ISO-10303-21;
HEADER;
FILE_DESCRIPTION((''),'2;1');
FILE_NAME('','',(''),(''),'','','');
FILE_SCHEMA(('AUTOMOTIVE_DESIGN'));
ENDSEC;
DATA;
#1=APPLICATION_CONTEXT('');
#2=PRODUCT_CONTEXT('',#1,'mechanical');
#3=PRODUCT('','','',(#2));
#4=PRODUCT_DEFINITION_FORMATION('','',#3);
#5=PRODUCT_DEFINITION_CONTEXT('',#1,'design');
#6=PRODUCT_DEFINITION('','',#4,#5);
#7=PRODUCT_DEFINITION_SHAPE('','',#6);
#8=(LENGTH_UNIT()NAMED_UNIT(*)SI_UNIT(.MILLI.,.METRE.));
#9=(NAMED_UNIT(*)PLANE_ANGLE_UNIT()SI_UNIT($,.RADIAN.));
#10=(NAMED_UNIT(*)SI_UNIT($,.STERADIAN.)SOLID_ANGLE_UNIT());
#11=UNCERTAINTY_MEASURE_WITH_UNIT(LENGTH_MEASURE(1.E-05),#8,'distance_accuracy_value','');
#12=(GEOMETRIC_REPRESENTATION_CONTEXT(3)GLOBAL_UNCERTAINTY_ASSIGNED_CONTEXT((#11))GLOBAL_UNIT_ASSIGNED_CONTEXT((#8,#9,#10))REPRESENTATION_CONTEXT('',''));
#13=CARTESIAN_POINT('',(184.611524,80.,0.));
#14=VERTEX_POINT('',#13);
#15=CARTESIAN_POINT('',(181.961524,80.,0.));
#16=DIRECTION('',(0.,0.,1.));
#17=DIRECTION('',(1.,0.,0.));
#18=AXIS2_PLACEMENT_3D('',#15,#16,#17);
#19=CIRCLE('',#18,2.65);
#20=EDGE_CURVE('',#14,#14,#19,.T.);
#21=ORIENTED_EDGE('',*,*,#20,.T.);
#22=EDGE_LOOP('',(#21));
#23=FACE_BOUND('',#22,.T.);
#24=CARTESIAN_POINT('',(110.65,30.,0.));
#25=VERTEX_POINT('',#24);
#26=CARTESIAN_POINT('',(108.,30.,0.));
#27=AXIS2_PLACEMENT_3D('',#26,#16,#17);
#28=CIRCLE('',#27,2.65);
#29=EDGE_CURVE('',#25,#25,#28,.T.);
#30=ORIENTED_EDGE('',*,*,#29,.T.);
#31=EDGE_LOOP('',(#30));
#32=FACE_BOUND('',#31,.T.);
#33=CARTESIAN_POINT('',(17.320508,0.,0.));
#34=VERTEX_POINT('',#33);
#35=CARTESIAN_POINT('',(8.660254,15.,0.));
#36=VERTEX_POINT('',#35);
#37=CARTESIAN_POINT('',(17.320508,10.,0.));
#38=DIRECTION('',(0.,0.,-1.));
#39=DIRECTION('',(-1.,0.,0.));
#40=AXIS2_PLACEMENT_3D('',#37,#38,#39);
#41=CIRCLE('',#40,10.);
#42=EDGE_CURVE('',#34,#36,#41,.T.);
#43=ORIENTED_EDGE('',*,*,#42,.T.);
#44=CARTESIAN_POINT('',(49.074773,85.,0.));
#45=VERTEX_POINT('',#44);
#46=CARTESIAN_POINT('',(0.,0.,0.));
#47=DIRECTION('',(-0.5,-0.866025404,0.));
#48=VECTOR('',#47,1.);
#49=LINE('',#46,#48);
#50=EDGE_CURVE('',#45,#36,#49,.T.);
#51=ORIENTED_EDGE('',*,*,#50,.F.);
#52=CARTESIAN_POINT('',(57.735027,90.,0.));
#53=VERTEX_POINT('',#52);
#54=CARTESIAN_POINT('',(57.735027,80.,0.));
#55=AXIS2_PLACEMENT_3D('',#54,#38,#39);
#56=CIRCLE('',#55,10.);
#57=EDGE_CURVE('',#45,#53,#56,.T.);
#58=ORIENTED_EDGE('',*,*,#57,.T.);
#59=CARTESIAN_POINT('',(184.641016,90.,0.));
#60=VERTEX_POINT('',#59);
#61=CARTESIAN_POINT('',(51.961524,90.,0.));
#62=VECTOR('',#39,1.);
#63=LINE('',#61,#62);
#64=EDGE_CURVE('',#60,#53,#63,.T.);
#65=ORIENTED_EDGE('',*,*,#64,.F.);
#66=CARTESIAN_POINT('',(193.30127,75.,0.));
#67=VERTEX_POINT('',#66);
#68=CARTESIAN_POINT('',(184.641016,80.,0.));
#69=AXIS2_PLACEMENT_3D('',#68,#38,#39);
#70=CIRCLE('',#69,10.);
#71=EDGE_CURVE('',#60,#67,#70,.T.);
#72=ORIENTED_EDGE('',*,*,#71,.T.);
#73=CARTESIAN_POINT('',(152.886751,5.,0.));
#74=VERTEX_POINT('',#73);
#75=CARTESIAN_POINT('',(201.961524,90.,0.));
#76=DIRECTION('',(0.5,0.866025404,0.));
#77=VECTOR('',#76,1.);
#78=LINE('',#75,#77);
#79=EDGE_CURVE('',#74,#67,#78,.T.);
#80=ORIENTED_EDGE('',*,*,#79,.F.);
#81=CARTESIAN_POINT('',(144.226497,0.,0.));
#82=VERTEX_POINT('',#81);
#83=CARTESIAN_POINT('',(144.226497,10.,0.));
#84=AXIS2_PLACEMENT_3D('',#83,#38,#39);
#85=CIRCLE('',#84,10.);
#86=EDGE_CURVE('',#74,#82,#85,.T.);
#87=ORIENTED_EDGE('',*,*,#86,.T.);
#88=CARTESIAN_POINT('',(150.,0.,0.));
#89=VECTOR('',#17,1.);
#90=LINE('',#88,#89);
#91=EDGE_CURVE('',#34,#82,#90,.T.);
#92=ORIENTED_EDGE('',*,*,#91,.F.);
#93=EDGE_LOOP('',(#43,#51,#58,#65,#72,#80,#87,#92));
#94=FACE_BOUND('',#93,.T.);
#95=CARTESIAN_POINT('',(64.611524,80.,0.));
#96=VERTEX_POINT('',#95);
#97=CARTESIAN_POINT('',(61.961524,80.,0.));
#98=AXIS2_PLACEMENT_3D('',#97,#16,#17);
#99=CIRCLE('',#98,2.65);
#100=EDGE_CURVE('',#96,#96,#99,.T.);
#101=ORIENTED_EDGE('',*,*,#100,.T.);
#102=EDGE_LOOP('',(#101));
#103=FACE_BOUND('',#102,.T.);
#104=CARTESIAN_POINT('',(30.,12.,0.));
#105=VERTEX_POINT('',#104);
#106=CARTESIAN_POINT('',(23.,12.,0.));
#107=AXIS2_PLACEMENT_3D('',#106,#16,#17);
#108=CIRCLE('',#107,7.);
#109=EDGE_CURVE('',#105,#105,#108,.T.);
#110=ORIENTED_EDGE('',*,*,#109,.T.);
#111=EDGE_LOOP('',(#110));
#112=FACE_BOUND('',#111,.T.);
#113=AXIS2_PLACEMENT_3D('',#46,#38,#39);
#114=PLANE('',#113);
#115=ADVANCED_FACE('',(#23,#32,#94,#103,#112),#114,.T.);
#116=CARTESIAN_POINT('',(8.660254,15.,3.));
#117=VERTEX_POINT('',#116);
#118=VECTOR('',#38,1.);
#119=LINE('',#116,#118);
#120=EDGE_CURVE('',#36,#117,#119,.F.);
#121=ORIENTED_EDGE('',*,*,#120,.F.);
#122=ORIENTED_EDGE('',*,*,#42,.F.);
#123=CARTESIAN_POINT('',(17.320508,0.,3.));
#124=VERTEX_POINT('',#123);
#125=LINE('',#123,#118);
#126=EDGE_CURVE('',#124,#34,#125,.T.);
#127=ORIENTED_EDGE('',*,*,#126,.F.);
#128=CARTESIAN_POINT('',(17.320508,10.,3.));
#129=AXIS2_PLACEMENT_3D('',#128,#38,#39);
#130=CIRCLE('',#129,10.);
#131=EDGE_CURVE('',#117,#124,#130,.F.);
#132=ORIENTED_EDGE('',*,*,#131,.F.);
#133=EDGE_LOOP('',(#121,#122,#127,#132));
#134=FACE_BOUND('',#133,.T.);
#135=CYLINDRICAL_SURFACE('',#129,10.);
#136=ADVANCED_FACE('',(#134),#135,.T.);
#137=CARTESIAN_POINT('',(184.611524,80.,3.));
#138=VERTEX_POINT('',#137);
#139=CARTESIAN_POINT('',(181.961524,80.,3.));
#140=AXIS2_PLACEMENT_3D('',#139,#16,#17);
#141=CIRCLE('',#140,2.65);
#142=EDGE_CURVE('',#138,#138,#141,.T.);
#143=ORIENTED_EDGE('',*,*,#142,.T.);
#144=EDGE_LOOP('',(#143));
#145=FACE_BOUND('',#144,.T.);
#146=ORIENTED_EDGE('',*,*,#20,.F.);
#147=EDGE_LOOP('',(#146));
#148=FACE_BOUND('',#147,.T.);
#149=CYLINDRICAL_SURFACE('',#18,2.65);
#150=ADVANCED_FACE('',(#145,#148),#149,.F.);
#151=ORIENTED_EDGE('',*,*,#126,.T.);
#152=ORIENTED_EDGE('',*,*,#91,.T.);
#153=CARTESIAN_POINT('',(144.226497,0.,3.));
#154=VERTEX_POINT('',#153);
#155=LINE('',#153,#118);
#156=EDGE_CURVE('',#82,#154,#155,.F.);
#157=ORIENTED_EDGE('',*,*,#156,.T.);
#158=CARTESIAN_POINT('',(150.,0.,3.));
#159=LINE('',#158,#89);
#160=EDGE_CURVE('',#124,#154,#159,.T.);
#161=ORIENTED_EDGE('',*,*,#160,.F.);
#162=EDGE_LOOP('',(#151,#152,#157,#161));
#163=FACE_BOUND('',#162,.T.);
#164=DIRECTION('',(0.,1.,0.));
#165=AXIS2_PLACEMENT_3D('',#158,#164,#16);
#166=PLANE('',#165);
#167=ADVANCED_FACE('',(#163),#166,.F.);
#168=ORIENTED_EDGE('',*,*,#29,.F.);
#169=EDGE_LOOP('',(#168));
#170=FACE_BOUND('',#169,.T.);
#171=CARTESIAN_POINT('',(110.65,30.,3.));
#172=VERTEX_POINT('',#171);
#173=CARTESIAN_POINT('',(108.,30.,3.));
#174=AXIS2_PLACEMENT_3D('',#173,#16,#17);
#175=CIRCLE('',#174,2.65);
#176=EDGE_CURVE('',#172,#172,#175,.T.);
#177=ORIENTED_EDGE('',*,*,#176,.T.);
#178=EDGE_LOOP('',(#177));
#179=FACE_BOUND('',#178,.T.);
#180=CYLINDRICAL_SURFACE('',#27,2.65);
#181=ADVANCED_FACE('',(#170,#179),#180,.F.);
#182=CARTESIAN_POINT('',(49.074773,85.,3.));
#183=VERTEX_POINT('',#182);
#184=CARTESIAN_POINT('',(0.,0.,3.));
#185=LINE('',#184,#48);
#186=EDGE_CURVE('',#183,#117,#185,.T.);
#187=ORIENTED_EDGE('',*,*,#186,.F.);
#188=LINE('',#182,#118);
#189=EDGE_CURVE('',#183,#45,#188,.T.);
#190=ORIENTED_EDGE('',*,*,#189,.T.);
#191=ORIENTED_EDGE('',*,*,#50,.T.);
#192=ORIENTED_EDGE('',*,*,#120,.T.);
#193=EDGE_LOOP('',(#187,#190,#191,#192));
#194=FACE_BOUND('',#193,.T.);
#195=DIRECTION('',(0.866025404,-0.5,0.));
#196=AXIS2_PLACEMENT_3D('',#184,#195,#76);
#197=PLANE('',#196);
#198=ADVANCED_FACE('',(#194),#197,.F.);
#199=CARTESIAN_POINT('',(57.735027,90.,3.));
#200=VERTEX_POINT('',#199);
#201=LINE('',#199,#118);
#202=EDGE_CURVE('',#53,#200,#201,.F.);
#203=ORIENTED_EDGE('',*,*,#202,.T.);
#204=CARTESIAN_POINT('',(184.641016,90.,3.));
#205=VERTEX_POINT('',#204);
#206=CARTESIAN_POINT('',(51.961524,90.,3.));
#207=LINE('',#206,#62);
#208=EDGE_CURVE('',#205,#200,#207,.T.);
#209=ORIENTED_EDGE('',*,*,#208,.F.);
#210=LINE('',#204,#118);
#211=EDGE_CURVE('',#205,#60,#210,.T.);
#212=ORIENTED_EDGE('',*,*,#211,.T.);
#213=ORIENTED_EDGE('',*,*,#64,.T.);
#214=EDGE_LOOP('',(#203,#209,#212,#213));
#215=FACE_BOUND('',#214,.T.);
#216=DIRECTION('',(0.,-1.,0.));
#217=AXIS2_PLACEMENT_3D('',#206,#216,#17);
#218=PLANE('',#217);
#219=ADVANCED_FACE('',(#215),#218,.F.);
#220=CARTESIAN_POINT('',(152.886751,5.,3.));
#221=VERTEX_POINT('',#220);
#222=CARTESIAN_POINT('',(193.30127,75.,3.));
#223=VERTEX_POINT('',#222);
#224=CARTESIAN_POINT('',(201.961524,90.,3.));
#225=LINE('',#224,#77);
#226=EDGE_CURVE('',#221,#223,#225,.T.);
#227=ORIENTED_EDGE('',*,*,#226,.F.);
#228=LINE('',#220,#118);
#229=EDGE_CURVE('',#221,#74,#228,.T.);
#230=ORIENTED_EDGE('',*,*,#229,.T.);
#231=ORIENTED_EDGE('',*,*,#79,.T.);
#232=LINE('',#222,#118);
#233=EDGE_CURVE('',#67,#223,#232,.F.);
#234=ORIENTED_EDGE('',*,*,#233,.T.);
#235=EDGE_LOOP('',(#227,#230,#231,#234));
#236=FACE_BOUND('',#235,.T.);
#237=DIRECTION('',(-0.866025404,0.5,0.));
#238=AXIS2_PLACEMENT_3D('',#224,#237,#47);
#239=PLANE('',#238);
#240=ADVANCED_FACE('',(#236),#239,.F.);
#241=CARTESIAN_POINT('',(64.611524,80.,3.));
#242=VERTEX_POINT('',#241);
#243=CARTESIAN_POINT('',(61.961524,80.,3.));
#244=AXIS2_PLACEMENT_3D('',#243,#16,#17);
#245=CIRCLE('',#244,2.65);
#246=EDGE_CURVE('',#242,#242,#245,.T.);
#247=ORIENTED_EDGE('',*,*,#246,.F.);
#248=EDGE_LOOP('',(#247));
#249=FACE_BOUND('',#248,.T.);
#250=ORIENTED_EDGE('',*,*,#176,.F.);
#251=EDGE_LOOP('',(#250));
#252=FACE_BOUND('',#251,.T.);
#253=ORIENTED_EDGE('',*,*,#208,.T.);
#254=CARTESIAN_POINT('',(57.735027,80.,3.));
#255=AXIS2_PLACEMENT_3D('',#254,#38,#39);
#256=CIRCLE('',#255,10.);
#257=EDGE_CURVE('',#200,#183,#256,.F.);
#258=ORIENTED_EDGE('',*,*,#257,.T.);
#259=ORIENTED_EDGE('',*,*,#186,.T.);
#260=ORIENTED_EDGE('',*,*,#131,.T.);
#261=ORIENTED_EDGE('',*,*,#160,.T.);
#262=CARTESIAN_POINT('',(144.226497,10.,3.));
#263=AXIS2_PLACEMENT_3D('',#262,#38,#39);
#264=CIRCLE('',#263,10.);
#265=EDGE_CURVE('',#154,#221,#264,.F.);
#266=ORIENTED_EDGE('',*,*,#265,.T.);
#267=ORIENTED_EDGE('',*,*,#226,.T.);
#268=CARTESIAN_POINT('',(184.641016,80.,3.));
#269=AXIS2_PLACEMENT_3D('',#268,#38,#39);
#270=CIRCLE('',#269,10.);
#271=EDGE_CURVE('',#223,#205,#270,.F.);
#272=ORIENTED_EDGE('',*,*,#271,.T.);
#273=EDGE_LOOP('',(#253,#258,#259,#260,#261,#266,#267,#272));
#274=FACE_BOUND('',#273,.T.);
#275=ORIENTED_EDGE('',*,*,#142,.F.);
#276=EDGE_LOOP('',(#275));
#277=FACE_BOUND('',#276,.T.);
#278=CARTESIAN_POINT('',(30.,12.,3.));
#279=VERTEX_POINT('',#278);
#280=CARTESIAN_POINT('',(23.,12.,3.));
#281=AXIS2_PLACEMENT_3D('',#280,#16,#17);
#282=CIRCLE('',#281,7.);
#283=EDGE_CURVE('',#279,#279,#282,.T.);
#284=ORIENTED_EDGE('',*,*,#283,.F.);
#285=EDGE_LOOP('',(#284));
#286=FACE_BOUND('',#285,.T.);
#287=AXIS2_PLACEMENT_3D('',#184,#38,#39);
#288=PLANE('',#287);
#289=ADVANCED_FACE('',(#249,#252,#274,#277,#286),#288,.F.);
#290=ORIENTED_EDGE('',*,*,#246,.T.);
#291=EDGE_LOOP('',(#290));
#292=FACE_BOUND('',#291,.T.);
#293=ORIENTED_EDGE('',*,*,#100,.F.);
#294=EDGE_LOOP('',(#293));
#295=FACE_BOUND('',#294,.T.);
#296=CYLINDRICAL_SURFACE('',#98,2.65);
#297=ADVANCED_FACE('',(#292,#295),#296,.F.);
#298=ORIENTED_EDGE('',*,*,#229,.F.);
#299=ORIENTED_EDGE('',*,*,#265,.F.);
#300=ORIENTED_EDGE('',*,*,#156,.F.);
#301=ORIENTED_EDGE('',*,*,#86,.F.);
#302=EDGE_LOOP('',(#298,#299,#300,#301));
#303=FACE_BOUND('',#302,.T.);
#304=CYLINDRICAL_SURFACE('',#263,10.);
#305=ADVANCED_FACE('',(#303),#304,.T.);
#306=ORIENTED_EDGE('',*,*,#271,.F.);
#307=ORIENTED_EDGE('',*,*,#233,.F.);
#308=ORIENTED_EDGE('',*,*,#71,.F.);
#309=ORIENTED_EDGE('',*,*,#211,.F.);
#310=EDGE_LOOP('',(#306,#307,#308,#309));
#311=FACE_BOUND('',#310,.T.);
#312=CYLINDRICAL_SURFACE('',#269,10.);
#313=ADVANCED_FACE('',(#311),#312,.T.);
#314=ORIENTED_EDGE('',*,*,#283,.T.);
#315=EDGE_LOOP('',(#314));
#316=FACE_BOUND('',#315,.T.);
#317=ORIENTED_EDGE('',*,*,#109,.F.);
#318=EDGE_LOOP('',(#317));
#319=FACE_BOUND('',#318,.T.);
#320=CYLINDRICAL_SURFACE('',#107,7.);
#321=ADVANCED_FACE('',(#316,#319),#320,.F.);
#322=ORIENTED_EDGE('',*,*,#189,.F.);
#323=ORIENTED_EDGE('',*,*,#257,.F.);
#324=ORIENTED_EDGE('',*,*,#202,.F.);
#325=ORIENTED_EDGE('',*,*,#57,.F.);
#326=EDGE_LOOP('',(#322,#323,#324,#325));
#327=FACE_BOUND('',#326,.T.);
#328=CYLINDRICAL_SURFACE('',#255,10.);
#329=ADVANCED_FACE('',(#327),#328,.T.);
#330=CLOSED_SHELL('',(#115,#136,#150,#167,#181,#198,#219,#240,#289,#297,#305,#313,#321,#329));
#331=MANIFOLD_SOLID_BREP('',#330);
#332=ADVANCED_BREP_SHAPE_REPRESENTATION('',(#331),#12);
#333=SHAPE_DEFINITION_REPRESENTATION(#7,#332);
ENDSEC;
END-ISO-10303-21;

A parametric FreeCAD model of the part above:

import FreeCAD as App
import Part
import Sketcher
Q = App.Units.Quantity


def edges_at(feature, points):
    """Names of the edges that pass closest to the given points."""
    edges = feature.Shape.Edges
    near = lambda p: min(range(len(edges)), key=lambda i: edges[i].distToShape(Part.Vertex(*p))[0])
    return sorted({f"Edge{near(p) + 1}" for p in points})

doc = App.newDocument("Part")
params = doc.addObject("Spreadsheet::Sheet", "Params")
for row, (alias, value) in enumerate([
    ("sketch1_width", "150 mm"),
    ("pad1_length", "3 mm"),
    ("sketch2_diameter", "14 mm"),
    ("sketch2_diameter2", "5.3 mm"),
    ("pocket1_length", "3 mm"),
    ("fillet_radius", "10 mm"),
], start=1):
    params.set(f"A{row}", alias)
    params.set(f"B{row}", "=" + value)
    params.setAlias(f"B{row}", alias)

body = doc.addObject("PartDesign::Body", "Body")

sketch1 = body.newObject("Sketcher::SketchObject", "Sketch")
sketch1.AttachmentSupport = (doc.getObject("XY_Plane"), [""])
sketch1.MapMode = "FlatFace"
sketch1.addGeometry([
    Part.LineSegment(App.Vector(52, 90, 0), App.Vector(0, 0, 0)),
    Part.LineSegment(App.Vector(0, 0, 0), App.Vector(150, 0, 0)),
    Part.LineSegment(App.Vector(150, 0, 0), App.Vector(202, 90, 0)),
    Part.LineSegment(App.Vector(202, 90, 0), App.Vector(52, 90, 0)),
], False)
sketch1.addConstraint([
    Sketcher.Constraint("Coincident", 0, 2, 1, 1),
    Sketcher.Constraint("Coincident", 1, 2, 2, 1),
    Sketcher.Constraint("Coincident", 2, 2, 3, 1),
    Sketcher.Constraint("Coincident", 3, 2, 0, 1),
    Sketcher.Constraint("Horizontal", 1),
    Sketcher.Constraint("Horizontal", 3),
    Sketcher.Constraint("Coincident", 0, 2, -1, 1),
    Sketcher.Constraint("Parallel", 0, 2),
    Sketcher.Constraint("DistanceX", 1, 1, 1, 2, Q("150 mm")),
    Sketcher.Constraint("Angle", 0, Q("-120 deg")),
    Sketcher.Constraint("DistanceY", -1, 1, 2, 2, Q("90 mm")),
])
sketch1.setExpression("Constraints[8]", "Params.sketch1_width")
pad1 = body.newObject("PartDesign::Pad", "Pad")
pad1.Profile = sketch1
pad1.setExpression("Length", "Params.pad1_length")

sketch2 = body.newObject("Sketcher::SketchObject", "Sketch001")
sketch2.AttachmentSupport = (doc.getObject("XY_Plane"), [""])
sketch2.MapMode = "FlatFace"
sketch2.AttachmentOffset = App.Placement(App.Vector(0, 0, 3), App.Rotation())
sketch2.addGeometry([
    Part.Circle(App.Vector(23, 12, 0), App.Vector(0, 0, 1), 7),
    Part.Circle(App.Vector(108, 30, 0), App.Vector(0, 0, 1), 2.6),
    Part.Circle(App.Vector(62, 80, 0), App.Vector(0, 0, 1), 2.6),
    Part.Circle(App.Vector(182, 80, 0), App.Vector(0, 0, 1), 2.6),
], False)
sketch2.addConstraint([
    Sketcher.Constraint("Equal", 1, 2),
    Sketcher.Constraint("Equal", 2, 3),
    Sketcher.Constraint("Horizontal", 2, 3, 3, 3),
    Sketcher.Constraint("Diameter", 0, Q("14 mm")),
    Sketcher.Constraint("Diameter", 1, Q("5.3 mm")),
    Sketcher.Constraint("DistanceX", -1, 1, 0, 3, Q("23 mm")),
    Sketcher.Constraint("DistanceY", -1, 1, 0, 3, Q("12 mm")),
    Sketcher.Constraint("DistanceX", -1, 1, 1, 3, Q("108 mm")),
    Sketcher.Constraint("DistanceY", -1, 1, 1, 3, Q("30 mm")),
    Sketcher.Constraint("DistanceY", -1, 1, 2, 3, Q("80 mm")),
    Sketcher.Constraint("DistanceX", 2, 3, 3, 3, Q("120 mm")),
    Sketcher.Constraint("DistanceX", -1, 1, 2, 3, Q("61.961524 mm")),
])
sketch2.setExpression("Constraints[3]", "Params.sketch2_diameter")
sketch2.setExpression("Constraints[4]", "Params.sketch2_diameter2")
pocket1 = body.newObject("PartDesign::Pocket", "Pocket")
pocket1.Profile = sketch2
pocket1.setExpression("Length", "Params.pocket1_length")
doc.recompute()

fillet = body.newObject("PartDesign::Fillet", "Fillet")
fillet.Base = (pocket1, edges_at(pocket1, [
    (0, 0, 1.5),
    (51.962, 90, 1.5),
    (201.962, 90, 1.5),
    (150, 0, 1.5),
]))
fillet.setExpression("Radius", "Params.fillet_radius")

doc.recompute()
